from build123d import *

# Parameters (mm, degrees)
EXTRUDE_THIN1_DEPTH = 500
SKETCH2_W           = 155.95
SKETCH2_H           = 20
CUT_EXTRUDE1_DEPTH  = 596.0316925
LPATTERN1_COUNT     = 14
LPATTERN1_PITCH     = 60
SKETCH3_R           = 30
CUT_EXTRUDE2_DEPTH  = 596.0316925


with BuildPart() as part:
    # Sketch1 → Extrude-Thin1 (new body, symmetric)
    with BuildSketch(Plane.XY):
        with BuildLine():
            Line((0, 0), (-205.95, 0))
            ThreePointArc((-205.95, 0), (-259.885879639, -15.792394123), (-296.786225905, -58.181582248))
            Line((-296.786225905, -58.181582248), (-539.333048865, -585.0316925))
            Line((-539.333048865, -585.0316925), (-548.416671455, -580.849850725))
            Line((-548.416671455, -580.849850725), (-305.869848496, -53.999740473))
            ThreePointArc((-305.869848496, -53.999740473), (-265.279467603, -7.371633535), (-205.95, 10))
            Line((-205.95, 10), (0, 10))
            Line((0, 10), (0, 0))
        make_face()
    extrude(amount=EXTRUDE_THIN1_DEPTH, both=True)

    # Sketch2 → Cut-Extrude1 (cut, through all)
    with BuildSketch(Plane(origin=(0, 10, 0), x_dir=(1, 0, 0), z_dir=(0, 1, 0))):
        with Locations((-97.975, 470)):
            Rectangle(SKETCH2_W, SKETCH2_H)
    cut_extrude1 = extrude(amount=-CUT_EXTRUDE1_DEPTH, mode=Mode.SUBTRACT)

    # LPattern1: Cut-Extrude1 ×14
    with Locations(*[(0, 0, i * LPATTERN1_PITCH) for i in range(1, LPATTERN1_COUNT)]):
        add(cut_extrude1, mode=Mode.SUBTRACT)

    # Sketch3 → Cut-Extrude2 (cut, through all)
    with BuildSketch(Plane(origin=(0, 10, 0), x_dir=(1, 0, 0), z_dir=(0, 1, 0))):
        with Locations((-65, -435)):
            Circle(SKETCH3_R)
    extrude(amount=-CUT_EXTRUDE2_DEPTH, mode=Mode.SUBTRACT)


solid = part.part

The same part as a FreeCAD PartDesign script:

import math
import FreeCAD as App
import Part
import Sketcher

V = App.Vector
Q = App.Units.Quantity


def add_polygon(sketch, points):
    """Adds a closed chain of lines whose ends are joined by coincident constraints."""
    first, n = sketch.GeometryCount, len(points)
    for a, b in zip(points, points[1:] + points[:1]):
        sketch.addGeometry(Part.LineSegment(App.Vector(*a, 0), App.Vector(*b, 0)), False)
    for i in range(n):
        sketch.addConstraint(Sketcher.Constraint("Coincident", first + i, 2, first + (i + 1) % n, 1))

doc = App.newDocument("Part")
body = doc.addObject("PartDesign::Body", "Body")

sketch1 = body.newObject("Sketcher::SketchObject", "Sketch")
sketch1.AttachmentSupport = (doc.getObject("XY_Plane"), [""])
sketch1.MapMode = "FlatFace"
sketch1.addGeometry([
    Part.LineSegment(V(-206, 0, 0), V(0, 0, 0)),
    Part.LineSegment(V(0, 0, 0), V(0, 10, 0)),
    Part.LineSegment(V(0, 10, 0), V(-206, 10, 0)),
    Part.ArcOfCircle(Part.Circle(V(-206, -100, 0), V(0, 0, 1), 110), math.radians(90), math.radians(155)),
    Part.LineSegment(V(-306, -54, 0), V(-548, -581, 0)),
    Part.LineSegment(V(-548, -581, 0), V(-539, -585, 0)),
    Part.LineSegment(V(-539, -585, 0), V(-297, -58, 0)),
    Part.ArcOfCircle(Part.Circle(V(-206, -100, 0), V(0, 0, 1), 100), math.radians(90), math.radians(155)),
], False)
sketch1.addConstraint([
    Sketcher.Constraint("Coincident", 0, 2, 1, 1),
    Sketcher.Constraint("Coincident", 1, 2, 2, 1),
    Sketcher.Constraint("Tangent", 2, 2, 3, 1),
    Sketcher.Constraint("Tangent", 3, 2, 4, 1),
    Sketcher.Constraint("Coincident", 4, 2, 5, 1),
    Sketcher.Constraint("Coincident", 5, 2, 6, 1),
    Sketcher.Constraint("Tangent", 6, 2, 7, 2),
    Sketcher.Constraint("Tangent", 7, 1, 0, 1),
    Sketcher.Constraint("Horizontal", 0),
    Sketcher.Constraint("Vertical", 1),
    Sketcher.Constraint("Horizontal", 2),
    Sketcher.Constraint("Coincident", 0, 2, -1, 1),
    Sketcher.Constraint("Coincident", 7, 3, 3, 3),
    Sketcher.Constraint("Perpendicular", 4, 5),
    Sketcher.Constraint("Perpendicular", 5, 6),
    Sketcher.Constraint("Radius", 3, 110.0),
    Sketcher.Constraint("Radius", 7, 100.0),
    Sketcher.Constraint("Distance", 4, 580.0),
    Sketcher.Constraint("DistanceX", 0, 1, 0, 2, 205.95),
    Sketcher.Constraint("Angle", 4, Q("-114.72 deg")),
])
pad1 = body.newObject("PartDesign::Pad", "Pad")
pad1.Profile = sketch1
pad1.Length = 1000
pad1.Midplane = True

sketch2 = body.newObject("Sketcher::SketchObject", "Sketch001")
sketch2.AttachmentSupport = (doc.getObject("XZ_Plane"), [""])
sketch2.MapMode = "FlatFace"
sketch2.AttachmentOffset = App.Placement(V(0, 0, -10), App.Rotation())
add_polygon(sketch2, [(-176, -480), (-176, -460), (-20, -460), (-20, -480)])
sketch2.addConstraint([
    Sketcher.Constraint("Vertical", 0),
    Sketcher.Constraint("Horizontal", 1),
    Sketcher.Constraint("Vertical", 2),
    Sketcher.Constraint("Horizontal", 3),
    Sketcher.Constraint("DistanceY", 0, 1, 0, 2, 20.0),
    Sketcher.Constraint("DistanceY", 0, 2, -1, 1, 460.0),
    Sketcher.Constraint("DistanceX", 1, 2, -1, 1, 20.0),
    Sketcher.Constraint("DistanceX", 1, 1, 1, 2, 155.95),
])
pocket1 = body.newObject("PartDesign::Pocket", "Pocket")
pocket1.Profile = sketch2
pocket1.Type = "ThroughAll"
pocket1.Reversed = True
doc.recompute()

linearpattern = body.newObject("PartDesign::LinearPattern", "LinearPattern")
linearpattern.Originals = [pocket1]
linearpattern.Direction = (doc.getObject("Z_Axis"), [""])
linearpattern.Mode = "offset"
linearpattern.Offset = 60
linearpattern.Occurrences = 14
body.Tip = linearpattern

sketch3 = body.newObject("Sketcher::SketchObject", "Sketch002")
sketch3.AttachmentSupport = (doc.getObject("XZ_Plane"), [""])
sketch3.MapMode = "FlatFace"
sketch3.AttachmentOffset = App.Placement(V(0, 0, -10), App.Rotation())
sketch3.addGeometry(Part.Circle(V(-65, 435, 0), V(0, 0, 1), 30), False)
sketch3.addConstraint([
    Sketcher.Constraint("Diameter", 0, 60.0),
    Sketcher.Constraint("DistanceX", 0, 3, -1, 1, 65.0),
    Sketcher.Constraint("DistanceY", -1, 1, 0, 3, 435.0),
])
pocket2 = body.newObject("PartDesign::Pocket", "Pocket001")
pocket2.Profile = sketch3
pocket2.Type = "ThroughAll"
pocket2.Reversed = True

doc.recompute()
